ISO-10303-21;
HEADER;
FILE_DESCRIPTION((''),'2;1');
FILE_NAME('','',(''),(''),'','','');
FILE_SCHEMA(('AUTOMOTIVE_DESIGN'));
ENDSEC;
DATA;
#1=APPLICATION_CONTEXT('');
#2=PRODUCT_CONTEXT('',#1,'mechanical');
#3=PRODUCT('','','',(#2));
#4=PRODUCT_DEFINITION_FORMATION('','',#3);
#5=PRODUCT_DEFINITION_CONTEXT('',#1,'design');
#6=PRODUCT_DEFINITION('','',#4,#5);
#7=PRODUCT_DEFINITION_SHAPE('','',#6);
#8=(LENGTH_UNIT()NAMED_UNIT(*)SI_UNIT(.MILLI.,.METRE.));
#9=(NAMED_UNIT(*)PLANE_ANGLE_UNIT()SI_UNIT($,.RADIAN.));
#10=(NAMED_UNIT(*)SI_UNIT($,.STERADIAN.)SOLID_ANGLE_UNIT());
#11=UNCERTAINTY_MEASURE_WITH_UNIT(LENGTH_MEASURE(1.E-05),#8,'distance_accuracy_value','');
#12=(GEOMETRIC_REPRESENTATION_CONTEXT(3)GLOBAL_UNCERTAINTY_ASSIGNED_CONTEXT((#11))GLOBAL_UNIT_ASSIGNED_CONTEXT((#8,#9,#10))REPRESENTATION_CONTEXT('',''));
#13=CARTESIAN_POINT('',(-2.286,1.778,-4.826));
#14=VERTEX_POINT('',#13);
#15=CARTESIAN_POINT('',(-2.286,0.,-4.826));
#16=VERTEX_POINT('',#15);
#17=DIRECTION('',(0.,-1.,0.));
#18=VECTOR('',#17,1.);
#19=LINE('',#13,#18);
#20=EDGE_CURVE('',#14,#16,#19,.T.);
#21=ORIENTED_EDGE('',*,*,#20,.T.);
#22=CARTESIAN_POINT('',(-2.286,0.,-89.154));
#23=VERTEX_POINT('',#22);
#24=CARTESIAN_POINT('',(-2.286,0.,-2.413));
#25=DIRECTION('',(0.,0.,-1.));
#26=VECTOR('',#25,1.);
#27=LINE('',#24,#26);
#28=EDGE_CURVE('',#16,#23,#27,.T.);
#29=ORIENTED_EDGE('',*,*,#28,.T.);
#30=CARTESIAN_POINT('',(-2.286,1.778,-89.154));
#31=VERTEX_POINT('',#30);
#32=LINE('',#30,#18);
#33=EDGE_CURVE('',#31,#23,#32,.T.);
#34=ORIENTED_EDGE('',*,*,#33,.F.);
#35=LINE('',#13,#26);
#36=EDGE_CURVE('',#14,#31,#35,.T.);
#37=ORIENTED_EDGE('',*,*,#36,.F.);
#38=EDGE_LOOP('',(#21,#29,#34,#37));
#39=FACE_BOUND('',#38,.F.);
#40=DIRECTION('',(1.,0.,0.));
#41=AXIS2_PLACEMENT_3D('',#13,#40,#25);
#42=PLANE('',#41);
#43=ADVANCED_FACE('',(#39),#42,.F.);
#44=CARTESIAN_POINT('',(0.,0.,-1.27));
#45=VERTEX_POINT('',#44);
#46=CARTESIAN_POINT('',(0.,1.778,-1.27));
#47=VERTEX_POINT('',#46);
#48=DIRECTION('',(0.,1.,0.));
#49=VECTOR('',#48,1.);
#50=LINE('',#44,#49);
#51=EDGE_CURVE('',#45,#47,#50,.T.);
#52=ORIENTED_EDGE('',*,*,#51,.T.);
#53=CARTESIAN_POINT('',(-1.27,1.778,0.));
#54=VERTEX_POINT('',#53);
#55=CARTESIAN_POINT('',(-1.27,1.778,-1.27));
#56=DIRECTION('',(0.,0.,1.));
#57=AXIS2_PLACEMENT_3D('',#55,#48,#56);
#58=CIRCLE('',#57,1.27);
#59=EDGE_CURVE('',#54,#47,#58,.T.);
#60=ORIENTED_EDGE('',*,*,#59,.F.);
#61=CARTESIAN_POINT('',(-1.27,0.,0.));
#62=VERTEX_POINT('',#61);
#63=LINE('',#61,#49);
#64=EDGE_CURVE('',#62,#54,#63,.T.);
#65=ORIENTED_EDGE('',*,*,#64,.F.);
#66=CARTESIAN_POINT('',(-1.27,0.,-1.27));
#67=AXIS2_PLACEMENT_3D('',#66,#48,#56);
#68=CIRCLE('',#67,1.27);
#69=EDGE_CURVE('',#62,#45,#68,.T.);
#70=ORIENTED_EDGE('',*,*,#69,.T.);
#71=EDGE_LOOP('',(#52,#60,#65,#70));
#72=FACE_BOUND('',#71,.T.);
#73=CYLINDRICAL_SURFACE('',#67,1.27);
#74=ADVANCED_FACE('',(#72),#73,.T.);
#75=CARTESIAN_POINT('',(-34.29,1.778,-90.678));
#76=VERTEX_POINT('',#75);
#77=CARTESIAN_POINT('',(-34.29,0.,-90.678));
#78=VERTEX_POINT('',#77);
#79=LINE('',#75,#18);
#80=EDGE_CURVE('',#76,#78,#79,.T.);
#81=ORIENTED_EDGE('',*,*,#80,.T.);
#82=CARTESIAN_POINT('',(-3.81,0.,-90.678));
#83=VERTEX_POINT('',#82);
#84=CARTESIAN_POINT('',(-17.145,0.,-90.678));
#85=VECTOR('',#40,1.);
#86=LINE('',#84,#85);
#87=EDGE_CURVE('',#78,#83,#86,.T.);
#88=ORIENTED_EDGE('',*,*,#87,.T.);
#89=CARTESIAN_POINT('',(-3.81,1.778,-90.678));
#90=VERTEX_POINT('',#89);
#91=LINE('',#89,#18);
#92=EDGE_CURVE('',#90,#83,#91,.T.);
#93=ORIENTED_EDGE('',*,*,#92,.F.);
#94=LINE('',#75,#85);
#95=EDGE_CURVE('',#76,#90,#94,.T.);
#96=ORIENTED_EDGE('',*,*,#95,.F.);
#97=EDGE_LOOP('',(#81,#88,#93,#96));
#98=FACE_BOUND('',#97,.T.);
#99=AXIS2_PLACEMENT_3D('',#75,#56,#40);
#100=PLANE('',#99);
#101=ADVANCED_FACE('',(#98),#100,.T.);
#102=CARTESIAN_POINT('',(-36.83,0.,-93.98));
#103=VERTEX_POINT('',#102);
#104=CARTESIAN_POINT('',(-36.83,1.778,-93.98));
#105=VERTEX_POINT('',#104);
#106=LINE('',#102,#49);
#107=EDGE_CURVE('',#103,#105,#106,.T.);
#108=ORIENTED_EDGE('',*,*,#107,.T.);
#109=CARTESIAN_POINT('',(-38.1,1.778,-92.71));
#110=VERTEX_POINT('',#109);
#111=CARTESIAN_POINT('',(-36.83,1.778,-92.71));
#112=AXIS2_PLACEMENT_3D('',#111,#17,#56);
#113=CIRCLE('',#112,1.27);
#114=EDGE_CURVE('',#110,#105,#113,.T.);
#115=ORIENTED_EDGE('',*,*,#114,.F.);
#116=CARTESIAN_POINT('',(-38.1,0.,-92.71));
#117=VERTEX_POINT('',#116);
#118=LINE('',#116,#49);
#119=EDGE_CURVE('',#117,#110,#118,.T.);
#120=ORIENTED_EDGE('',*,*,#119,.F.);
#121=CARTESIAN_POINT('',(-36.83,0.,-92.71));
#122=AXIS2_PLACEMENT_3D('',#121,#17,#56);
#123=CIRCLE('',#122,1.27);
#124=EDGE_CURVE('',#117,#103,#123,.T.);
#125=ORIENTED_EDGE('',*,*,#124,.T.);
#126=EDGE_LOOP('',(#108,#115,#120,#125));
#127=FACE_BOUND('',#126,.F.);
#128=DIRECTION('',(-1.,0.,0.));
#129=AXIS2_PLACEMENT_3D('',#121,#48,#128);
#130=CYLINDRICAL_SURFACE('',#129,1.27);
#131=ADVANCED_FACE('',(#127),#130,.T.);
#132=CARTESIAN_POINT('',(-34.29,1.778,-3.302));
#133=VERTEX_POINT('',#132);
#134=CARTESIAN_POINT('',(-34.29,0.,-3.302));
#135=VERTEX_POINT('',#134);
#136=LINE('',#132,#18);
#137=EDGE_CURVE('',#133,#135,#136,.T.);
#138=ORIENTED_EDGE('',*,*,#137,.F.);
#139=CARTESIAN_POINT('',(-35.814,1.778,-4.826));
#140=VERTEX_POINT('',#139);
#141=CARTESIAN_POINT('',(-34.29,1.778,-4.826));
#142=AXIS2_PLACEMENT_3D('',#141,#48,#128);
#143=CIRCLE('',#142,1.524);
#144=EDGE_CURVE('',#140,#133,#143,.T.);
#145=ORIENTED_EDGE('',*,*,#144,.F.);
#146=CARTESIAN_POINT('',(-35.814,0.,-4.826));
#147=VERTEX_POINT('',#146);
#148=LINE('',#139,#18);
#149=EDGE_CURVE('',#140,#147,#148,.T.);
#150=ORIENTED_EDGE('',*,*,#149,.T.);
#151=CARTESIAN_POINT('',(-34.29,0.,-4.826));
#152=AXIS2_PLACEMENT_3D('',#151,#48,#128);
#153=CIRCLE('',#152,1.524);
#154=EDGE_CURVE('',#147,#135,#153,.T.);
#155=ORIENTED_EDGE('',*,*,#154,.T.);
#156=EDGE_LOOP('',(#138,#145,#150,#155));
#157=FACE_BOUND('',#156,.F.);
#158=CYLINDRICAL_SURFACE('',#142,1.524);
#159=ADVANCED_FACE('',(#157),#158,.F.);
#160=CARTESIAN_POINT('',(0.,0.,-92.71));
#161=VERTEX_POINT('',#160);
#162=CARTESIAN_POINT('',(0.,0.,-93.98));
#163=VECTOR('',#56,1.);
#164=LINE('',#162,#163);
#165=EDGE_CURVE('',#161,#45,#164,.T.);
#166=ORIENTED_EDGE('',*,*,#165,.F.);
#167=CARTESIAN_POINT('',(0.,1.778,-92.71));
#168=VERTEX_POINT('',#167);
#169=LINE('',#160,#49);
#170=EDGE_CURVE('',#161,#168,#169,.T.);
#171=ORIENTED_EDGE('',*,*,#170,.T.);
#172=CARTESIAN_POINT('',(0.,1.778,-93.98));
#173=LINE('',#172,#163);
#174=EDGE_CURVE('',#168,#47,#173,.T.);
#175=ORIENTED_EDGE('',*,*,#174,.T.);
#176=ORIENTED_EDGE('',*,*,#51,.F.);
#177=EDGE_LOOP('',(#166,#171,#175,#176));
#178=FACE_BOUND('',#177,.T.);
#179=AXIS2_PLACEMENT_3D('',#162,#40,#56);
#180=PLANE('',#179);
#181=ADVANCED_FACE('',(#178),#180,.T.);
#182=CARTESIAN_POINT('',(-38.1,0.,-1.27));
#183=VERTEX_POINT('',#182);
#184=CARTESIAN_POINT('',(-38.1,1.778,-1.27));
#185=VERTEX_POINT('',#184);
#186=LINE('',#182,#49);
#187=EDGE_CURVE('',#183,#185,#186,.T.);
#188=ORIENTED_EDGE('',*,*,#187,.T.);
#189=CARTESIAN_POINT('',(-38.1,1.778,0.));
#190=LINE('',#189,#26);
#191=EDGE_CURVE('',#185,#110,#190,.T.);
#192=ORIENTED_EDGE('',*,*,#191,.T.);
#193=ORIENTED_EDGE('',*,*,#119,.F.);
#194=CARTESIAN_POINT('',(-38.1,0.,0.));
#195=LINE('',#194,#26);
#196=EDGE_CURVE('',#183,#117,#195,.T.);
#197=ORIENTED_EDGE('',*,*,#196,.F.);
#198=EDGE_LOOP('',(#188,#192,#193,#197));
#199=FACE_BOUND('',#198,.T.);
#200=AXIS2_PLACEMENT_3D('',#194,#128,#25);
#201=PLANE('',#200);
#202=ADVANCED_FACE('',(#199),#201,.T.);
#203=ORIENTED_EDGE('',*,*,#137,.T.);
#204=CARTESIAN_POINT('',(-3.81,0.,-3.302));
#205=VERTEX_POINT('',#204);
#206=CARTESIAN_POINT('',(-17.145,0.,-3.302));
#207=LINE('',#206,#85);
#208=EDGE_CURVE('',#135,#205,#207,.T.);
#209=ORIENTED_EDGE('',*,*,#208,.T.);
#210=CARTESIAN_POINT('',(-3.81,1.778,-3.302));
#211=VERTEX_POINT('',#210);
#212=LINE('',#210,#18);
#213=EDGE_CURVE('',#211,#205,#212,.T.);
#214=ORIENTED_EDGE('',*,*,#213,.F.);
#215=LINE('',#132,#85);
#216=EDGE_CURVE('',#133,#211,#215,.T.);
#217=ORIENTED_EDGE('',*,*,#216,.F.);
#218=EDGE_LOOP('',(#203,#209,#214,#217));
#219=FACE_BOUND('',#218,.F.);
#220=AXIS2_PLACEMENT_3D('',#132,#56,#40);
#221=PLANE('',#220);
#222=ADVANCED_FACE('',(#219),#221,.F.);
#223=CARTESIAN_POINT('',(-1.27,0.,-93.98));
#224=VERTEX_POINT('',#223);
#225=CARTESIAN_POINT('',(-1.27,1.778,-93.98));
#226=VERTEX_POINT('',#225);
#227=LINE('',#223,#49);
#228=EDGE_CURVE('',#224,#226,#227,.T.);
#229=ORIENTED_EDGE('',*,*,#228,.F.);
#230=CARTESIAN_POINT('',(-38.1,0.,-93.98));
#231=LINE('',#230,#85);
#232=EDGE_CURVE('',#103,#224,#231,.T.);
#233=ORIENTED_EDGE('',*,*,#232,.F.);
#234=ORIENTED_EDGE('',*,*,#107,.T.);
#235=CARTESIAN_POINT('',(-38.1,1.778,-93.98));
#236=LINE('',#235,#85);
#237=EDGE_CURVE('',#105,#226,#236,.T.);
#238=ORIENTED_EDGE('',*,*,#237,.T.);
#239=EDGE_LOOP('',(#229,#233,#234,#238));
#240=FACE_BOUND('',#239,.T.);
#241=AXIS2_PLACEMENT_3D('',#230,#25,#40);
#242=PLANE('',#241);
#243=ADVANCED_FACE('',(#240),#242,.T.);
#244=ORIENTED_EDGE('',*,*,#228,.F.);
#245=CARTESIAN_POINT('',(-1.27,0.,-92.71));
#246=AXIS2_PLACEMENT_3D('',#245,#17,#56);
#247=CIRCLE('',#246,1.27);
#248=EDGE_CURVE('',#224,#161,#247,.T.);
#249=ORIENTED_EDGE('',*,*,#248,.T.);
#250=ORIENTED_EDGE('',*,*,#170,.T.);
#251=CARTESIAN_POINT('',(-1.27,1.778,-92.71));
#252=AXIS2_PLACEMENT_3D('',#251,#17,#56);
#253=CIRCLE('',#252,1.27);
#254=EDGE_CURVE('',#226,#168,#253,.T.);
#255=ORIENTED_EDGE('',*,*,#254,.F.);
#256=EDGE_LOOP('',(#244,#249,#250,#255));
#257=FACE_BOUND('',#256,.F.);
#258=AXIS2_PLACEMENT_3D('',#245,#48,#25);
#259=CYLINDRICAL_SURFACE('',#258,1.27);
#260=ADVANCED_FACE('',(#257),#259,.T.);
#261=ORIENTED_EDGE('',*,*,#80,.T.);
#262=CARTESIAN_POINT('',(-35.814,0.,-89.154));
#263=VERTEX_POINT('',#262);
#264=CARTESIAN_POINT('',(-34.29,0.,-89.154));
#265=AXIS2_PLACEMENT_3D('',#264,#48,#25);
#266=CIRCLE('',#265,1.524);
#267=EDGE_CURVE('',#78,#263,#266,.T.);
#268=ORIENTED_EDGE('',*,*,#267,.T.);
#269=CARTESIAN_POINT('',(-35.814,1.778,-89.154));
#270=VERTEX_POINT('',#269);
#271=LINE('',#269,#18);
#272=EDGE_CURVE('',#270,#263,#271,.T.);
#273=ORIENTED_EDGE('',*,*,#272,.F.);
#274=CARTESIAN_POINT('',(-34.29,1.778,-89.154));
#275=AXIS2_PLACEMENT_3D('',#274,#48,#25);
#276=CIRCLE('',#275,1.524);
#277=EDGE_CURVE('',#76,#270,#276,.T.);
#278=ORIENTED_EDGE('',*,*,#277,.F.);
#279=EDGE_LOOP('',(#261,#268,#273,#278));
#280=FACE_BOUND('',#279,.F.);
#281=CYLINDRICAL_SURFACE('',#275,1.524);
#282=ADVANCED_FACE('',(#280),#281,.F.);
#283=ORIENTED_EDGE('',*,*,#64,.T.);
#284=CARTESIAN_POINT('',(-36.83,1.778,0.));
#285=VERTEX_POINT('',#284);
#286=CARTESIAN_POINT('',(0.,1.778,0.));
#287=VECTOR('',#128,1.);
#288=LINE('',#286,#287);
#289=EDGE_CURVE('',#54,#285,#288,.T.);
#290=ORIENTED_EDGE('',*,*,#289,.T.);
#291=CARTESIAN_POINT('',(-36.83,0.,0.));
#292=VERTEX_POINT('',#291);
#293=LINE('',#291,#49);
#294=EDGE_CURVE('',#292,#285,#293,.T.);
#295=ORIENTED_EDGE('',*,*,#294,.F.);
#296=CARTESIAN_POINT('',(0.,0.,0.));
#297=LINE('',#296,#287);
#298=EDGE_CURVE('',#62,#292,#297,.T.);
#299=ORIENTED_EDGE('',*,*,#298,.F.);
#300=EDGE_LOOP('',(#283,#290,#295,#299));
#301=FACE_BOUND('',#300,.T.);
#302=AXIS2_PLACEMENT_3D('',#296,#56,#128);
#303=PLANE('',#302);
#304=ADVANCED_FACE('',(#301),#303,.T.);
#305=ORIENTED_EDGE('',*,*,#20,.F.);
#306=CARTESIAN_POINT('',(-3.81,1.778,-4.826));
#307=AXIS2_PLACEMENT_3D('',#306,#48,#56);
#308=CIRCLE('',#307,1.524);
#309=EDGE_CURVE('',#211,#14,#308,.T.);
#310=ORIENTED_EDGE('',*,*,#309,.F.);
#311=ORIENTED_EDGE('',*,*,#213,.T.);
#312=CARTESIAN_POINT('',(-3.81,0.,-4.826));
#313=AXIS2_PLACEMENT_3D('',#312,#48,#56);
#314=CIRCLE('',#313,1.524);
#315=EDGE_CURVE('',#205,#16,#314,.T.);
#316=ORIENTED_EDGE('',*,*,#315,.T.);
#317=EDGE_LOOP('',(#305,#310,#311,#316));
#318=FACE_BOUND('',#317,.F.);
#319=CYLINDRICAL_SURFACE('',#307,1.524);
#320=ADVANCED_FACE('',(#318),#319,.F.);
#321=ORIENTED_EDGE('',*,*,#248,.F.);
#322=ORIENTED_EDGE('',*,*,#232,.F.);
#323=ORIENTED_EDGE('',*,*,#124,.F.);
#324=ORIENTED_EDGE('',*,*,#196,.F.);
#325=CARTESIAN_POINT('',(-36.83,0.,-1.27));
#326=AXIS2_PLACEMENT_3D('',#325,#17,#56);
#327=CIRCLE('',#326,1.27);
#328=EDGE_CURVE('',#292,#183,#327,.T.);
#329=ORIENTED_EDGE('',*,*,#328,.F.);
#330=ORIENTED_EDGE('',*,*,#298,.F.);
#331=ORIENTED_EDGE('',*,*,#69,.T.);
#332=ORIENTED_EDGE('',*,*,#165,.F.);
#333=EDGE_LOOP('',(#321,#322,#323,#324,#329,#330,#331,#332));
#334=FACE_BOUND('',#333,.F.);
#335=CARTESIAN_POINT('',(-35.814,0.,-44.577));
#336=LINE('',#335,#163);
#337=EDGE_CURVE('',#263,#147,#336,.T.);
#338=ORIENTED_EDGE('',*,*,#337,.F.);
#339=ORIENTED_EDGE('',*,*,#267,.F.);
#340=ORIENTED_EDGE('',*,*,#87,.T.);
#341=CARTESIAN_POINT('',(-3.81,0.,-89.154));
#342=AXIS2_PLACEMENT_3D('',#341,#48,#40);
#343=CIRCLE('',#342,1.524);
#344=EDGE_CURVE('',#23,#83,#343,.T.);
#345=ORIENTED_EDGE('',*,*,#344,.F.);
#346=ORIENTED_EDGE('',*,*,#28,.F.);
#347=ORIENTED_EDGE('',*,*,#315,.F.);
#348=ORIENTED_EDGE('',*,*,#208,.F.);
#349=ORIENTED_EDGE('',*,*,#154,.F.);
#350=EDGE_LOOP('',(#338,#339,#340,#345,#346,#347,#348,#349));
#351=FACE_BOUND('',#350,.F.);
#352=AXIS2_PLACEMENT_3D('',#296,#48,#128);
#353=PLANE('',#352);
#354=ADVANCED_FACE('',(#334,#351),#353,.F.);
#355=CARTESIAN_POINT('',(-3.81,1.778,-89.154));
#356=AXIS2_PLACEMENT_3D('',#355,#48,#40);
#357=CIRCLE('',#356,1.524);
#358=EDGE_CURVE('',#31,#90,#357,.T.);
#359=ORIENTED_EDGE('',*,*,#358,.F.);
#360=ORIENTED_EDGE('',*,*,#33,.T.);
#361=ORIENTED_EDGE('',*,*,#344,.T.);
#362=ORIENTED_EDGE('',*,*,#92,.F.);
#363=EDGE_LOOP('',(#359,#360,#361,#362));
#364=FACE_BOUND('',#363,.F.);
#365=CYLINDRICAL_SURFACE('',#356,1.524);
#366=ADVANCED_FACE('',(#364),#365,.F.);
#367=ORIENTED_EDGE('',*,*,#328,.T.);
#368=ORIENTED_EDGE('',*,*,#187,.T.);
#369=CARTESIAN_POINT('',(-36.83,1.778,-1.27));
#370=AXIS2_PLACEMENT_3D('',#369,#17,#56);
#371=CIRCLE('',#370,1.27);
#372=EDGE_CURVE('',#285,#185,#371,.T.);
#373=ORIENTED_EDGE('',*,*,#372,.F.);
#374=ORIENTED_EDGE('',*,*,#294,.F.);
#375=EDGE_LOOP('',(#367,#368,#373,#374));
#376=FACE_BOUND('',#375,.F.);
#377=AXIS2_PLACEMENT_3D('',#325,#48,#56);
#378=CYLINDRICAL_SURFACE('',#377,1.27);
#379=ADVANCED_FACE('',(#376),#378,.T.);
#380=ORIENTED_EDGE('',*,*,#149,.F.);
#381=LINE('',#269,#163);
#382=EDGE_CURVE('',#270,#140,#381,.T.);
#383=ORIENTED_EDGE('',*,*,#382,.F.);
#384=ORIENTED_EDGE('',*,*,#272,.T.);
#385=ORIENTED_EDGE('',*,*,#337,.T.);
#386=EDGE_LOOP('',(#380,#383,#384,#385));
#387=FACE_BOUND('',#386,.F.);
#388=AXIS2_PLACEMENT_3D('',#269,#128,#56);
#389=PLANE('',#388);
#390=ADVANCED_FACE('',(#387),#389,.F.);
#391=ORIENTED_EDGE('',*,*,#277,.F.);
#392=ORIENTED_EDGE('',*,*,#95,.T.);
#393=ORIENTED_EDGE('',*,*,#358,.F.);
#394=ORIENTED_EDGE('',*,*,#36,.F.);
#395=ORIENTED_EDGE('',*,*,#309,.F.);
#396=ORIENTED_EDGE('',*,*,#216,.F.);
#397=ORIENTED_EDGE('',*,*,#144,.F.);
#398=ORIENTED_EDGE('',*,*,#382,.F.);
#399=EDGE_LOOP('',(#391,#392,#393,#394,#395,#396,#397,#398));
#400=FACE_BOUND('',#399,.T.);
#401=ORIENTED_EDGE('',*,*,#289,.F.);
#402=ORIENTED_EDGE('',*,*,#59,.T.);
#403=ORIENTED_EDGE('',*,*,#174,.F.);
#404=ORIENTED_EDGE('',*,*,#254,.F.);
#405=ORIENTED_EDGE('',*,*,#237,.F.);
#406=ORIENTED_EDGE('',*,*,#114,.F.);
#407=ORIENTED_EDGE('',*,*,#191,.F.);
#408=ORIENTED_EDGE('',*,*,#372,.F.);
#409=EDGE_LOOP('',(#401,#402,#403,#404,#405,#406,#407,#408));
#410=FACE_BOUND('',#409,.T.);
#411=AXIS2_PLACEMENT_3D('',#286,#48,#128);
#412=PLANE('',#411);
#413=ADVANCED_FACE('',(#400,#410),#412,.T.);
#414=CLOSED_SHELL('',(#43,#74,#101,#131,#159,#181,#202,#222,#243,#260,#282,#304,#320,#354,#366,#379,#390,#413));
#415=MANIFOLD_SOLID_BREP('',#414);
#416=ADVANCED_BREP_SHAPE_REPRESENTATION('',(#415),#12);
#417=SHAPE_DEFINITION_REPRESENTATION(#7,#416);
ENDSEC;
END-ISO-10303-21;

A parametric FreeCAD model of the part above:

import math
import FreeCAD as App
import Part
import Sketcher
Q = App.Units.Quantity


def edges_at(feature, points):
    """Names of the edges that pass closest to the given points."""
    edges = feature.Shape.Edges
    near = lambda p: min(range(len(edges)), key=lambda i: edges[i].distToShape(Part.Vertex(*p))[0])
    return sorted({f"Edge{near(p) + 1}" for p in points})

doc = App.newDocument("Part")
params = doc.addObject("Spreadsheet::Sheet", "Params")
for row, (alias, value) in enumerate([
    ("sketch1_width", "1.5 in"),
    ("sketch1_height", "3.7 in"),
    ("pad1_length", "0.07 in"),
    ("fillet_radius", "0.05 in"),
    ("sketch2_radius", "0.06 in"),
    ("sketch2_width", "1.2 in"),
    ("sketch2_height", "3.32 in"),
], start=1):
    params.set(f"A{row}", alias)
    params.set(f"B{row}", "=" + value)
    params.setAlias(f"B{row}", alias)

body = doc.addObject("PartDesign::Body", "Body")

# Sketch on XZ plane
sketch1 = body.newObject("Sketcher::SketchObject", "Sketch")
sketch1.AttachmentSupport = (doc.getObject("XZ_Plane"), [""])
sketch1.MapMode = "FlatFace"
sketch1.addGeometry([
    Part.LineSegment(App.Vector(-38, 0, 0), App.Vector(0, 0, 0)),
    Part.LineSegment(App.Vector(0, 0, 0), App.Vector(0, -94, 0)),
    Part.LineSegment(App.Vector(0, -94, 0), App.Vector(-38, -94, 0)),
    Part.LineSegment(App.Vector(-38, -94, 0), App.Vector(-38, 0, 0)),
], False)
sketch1.addConstraint([
    Sketcher.Constraint("Coincident", 0, 2, 1, 1),
    Sketcher.Constraint("Coincident", 1, 2, 2, 1),
    Sketcher.Constraint("Coincident", 2, 2, 3, 1),
    Sketcher.Constraint("Coincident", 3, 2, 0, 1),
    Sketcher.Constraint("Horizontal", 0),
    Sketcher.Constraint("Vertical", 1),
    Sketcher.Constraint("Horizontal", 2),
    Sketcher.Constraint("Vertical", 3),
    Sketcher.Constraint("Coincident", 0, 2, -1, 1),
    Sketcher.Constraint("DistanceX", 0, 1, 0, 2, Q("1.5 in")),
    Sketcher.Constraint("DistanceY", 1, 2, 1, 1, Q("3.7 in")),
])
sketch1.setExpression("Constraints[9]", "Params.sketch1_width")
sketch1.setExpression("Constraints[10]", "Params.sketch1_height")
pad1 = body.newObject("PartDesign::Pad", "Pad")
pad1.Profile = sketch1
pad1.setExpression("Length", "Params.pad1_length")
pad1.Reversed = True
doc.recompute()

fillet = body.newObject("PartDesign::Fillet", "Fillet")
fillet.Base = (pad1, edges_at(pad1, [
    (0, 0.889, 0),
    (0, 0.889, -93.98),
    (-38.1, 0.889, -93.98),
    (-38.1, 0.889, 0),
]))
fillet.setExpression("Radius", "Params.fillet_radius")

# Sketch on XZ plane
sketch2 = body.newObject("Sketcher::SketchObject", "Sketch001")
sketch2.AttachmentSupport = (doc.getObject("XZ_Plane"), [""])
sketch2.MapMode = "FlatFace"
sketch2.AttachmentOffset = App.Placement(App.Vector(0, 0, -0.07 * 25.4), App.Rotation())
sketch2.addGeometry([
    Part.ArcOfCircle(Part.Circle(App.Vector(-3.8, -4.8, 0), App.Vector(0, 0, 1), 1.5), math.radians(0), math.radians(90)),  # 0
    Part.LineSegment(App.Vector(-2.3, -4.8, 0), App.Vector(-2.3, -89.2, 0)),  # 1
    Part.ArcOfCircle(Part.Circle(App.Vector(-3.8, -89.2, 0), App.Vector(0, 0, 1), 1.5), math.radians(-90), math.radians(0)),  # 2
    Part.LineSegment(App.Vector(-3.8, -90.7, 0), App.Vector(-34.3, -90.7, 0)),  # 3
    Part.ArcOfCircle(Part.Circle(App.Vector(-34.3, -89.2, 0), App.Vector(0, 0, 1), 1.5), math.radians(180), math.radians(270)),  # 4
    Part.LineSegment(App.Vector(-35.8, -89.2, 0), App.Vector(-35.8, -4.8, 0)),  # 5
    Part.ArcOfCircle(Part.Circle(App.Vector(-34.3, -4.8, 0), App.Vector(0, 0, 1), 1.5), math.radians(90), math.radians(180)),  # 6
    Part.LineSegment(App.Vector(-34.3, -3.3, 0), App.Vector(-3.8, -3.3, 0)),  # 7
], False)
sketch2.addConstraint([
    Sketcher.Constraint("Tangent", 0, 1, 1, 1),
    Sketcher.Constraint("Tangent", 1, 2, 2, 2),
    Sketcher.Constraint("Tangent", 2, 1, 3, 1),
    Sketcher.Constraint("Tangent", 3, 2, 4, 2),
    Sketcher.Constraint("Tangent", 4, 1, 5, 1),
    Sketcher.Constraint("Tangent", 5, 2, 6, 2),
    Sketcher.Constraint("Tangent", 6, 1, 7, 1),
    Sketcher.Constraint("Tangent", 7, 2, 0, 2),
    Sketcher.Constraint("Vertical", 1),
    Sketcher.Constraint("Horizontal", 3),
    Sketcher.Constraint("Vertical", 5),
    Sketcher.Constraint("Horizontal", 7),
    Sketcher.Constraint("Equal", 0, 2),
    Sketcher.Constraint("Equal", 2, 4),
    Sketcher.Constraint("Equal", 4, 6),
    Sketcher.Constraint("Radius", 0, Q("0.06 in")),
    Sketcher.Constraint("DistanceX", 0, 1, -1, 1, Q("0.09 in")),
    Sketcher.Constraint("DistanceX", 3, 2, 3, 1, Q("1.2 in")),
    Sketcher.Constraint("DistanceY", 1, 2, 1, 1, Q("3.32 in")),
    Sketcher.Constraint("DistanceY", 0, 3, -1, 1, Q("0.19 in")),
])
sketch2.setExpression("Constraints[15]", "Params.sketch2_radius")
sketch2.setExpression("Constraints[17]", "Params.sketch2_width")
sketch2.setExpression("Constraints[18]", "Params.sketch2_height")
pocket1 = body.newObject("PartDesign::Pocket", "Pocket")
pocket1.Profile = sketch2
pocket1.Type = "ThroughAll"
pocket1.Reversed = True

doc.recompute()
